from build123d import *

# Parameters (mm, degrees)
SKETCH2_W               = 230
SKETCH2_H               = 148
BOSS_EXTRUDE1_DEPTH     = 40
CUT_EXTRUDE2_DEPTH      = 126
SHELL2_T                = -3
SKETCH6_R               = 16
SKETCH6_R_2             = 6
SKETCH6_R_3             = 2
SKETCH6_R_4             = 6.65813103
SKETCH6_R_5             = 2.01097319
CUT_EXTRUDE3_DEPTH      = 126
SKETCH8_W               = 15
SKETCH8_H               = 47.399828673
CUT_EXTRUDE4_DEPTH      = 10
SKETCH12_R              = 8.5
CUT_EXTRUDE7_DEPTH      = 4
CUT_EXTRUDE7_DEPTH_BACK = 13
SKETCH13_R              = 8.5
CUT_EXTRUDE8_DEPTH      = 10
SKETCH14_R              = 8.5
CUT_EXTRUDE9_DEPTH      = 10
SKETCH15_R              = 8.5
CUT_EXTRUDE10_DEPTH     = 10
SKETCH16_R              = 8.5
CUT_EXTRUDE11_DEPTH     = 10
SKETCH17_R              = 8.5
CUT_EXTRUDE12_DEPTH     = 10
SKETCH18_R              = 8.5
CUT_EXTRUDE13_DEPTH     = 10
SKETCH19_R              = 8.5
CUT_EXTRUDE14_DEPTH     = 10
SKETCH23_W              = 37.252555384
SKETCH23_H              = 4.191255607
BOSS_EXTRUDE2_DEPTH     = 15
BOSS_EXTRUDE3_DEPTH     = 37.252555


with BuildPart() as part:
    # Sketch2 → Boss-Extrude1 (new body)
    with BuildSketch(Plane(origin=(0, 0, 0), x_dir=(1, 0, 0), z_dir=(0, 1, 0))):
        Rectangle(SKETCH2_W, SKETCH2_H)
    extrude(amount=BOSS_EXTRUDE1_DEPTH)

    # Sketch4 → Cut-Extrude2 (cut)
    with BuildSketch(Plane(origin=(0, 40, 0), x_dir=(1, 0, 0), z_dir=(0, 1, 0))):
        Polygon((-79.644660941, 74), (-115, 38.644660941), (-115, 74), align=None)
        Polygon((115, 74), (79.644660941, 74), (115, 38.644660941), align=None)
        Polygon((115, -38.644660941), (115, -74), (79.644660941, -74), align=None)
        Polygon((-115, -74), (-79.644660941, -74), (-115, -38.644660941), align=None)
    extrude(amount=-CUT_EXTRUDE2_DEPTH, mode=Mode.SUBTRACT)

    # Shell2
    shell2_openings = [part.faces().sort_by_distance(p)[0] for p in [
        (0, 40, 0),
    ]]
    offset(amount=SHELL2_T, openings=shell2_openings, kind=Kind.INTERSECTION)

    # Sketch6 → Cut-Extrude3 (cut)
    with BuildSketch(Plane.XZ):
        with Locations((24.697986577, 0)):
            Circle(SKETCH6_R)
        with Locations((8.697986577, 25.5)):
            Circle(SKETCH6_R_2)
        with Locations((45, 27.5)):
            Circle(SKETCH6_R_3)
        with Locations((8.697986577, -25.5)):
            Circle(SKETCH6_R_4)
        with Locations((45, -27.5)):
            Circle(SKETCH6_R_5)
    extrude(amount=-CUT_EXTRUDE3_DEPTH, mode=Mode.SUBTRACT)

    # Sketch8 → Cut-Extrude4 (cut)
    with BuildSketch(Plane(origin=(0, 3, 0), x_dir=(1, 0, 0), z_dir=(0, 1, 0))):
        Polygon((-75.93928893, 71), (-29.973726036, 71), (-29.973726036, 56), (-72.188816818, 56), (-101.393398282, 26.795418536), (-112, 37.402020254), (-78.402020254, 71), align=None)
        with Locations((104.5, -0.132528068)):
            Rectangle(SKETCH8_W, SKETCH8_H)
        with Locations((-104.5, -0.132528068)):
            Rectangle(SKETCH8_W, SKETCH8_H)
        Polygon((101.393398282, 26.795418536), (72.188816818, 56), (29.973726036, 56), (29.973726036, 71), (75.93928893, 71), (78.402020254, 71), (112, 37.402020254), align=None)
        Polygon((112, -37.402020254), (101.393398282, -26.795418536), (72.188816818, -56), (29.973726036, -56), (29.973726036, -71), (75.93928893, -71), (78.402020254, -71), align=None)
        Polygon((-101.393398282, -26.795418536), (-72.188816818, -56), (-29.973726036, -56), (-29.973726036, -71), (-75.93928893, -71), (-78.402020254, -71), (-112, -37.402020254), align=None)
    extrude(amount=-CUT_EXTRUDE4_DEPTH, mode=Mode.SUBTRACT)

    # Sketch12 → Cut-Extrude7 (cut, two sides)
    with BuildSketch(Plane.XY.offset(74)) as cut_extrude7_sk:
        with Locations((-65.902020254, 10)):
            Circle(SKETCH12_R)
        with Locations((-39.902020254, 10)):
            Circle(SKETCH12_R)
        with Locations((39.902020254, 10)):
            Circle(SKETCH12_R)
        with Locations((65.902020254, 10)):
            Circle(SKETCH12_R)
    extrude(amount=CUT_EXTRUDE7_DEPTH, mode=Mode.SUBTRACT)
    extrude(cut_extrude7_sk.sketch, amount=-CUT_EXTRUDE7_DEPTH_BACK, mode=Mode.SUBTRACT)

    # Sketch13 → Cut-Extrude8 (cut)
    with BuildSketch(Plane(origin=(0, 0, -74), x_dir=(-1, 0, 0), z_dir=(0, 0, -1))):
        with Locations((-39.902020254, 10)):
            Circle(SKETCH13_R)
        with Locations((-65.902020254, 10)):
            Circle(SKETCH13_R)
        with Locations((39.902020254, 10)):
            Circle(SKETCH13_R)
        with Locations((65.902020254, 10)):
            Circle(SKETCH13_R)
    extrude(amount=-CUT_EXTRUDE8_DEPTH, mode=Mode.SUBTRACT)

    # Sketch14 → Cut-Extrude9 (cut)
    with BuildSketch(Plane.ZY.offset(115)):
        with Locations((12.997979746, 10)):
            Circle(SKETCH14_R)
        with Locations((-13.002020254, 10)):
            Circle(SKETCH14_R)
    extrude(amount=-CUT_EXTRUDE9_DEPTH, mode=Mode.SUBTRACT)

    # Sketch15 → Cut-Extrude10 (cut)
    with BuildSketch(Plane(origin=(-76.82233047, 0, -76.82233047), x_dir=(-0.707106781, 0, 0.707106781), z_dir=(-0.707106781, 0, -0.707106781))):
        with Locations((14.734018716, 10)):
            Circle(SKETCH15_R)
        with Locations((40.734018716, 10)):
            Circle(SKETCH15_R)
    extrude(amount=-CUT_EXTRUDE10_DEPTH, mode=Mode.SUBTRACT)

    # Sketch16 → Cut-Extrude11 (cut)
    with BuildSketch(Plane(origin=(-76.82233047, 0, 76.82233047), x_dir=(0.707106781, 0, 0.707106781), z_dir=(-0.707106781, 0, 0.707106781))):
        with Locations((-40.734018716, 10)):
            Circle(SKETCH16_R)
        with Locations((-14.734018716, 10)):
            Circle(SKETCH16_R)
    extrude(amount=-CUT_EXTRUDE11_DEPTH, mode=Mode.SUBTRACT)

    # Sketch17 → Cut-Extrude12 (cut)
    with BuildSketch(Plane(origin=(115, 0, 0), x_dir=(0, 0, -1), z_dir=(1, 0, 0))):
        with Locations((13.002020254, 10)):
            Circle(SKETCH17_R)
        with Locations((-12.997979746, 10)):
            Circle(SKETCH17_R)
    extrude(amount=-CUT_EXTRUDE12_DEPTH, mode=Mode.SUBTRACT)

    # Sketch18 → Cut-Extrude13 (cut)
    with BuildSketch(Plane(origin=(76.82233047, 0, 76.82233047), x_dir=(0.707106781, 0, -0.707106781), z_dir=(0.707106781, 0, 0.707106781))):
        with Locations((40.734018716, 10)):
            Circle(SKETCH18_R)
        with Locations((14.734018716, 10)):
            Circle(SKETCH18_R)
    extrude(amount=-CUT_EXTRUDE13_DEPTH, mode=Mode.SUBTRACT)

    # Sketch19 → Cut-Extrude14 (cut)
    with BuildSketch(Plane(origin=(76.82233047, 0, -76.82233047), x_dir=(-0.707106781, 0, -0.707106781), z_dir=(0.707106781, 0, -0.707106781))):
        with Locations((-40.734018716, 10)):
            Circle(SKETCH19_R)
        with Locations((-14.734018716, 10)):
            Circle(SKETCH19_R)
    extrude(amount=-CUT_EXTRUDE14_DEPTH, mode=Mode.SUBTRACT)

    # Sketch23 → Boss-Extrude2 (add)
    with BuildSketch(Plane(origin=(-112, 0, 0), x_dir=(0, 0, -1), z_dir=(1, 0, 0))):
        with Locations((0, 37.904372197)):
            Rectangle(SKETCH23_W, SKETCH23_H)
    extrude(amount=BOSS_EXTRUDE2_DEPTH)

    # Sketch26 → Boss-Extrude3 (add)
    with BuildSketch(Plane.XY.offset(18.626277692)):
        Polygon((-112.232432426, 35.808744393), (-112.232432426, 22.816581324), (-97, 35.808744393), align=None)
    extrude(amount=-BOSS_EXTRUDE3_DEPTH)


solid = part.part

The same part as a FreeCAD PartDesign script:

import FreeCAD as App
import Part
import Sketcher
from FreeCAD import Vector


def faces_at(feature, points):
    """Names of the faces that lie closest to the given points."""
    faces = feature.Shape.Faces
    near = lambda p: min(range(len(faces)), key=lambda i: faces[i].distToShape(Part.Vertex(*p))[0])
    return sorted({f"Face{near(p) + 1}" for p in points})


def add_polygon(sketch, points):
    """Adds a closed chain of lines whose ends are joined by coincident constraints."""
    first, n = sketch.GeometryCount, len(points)
    for a, b in zip(points, points[1:] + points[:1]):
        sketch.addGeometry(Part.LineSegment(App.Vector(*a, 0), App.Vector(*b, 0)), False)
    for i in range(n):
        sketch.addConstraint(Sketcher.Constraint("Coincident", first + i, 2, first + (i + 1) % n, 1))

doc = App.newDocument("Part")
body = doc.addObject("PartDesign::Body", "Body")

# Sketch on XZ plane
sketch1 = body.newObject("Sketcher::SketchObject", "Sketch")
sketch1.AttachmentSupport = (doc.getObject("XZ_Plane"), [""])
sketch1.MapMode = "FlatFace"
add_polygon(sketch1, [(-115, -74), (-115, 74), (115, 74), (115, -74)])  # lines 0-3
sketch1.addConstraint([
    Sketcher.Constraint("Vertical", 0),
    Sketcher.Constraint("Horizontal", 1),
    Sketcher.Constraint("Vertical", 2),
    Sketcher.Constraint("Horizontal", 3),
    Sketcher.Constraint("Symmetric", 0, 2, 2, 2, -1, 1),
    Sketcher.Constraint("DistanceX", 1, 1, 1, 2, 230.0),
    Sketcher.Constraint("DistanceY", 0, 1, 0, 2, 148.0),
])
pad1 = body.newObject("PartDesign::Pad", "Pad")
pad1.Profile = sketch1
pad1.Length = 40
pad1.Reversed = True

# Sketch on XZ plane
sketch2 = body.newObject("Sketcher::SketchObject", "Sketch001")
sketch2.AttachmentSupport = (doc.getObject("XZ_Plane"), [""])
sketch2.MapMode = "FlatFace"
sketch2.AttachmentOffset = App.Placement(Vector(0, 0, -40), App.Rotation())
add_polygon(sketch2, [(-115, -39), (-80, -74), (-115, -74)])  # lines 0-2
add_polygon(sketch2, [(115, -74), (80, -74), (115, -39)])  # lines 3-5
add_polygon(sketch2, [(115, 74), (115, 39), (80, 74)])  # lines 6-8
add_polygon(sketch2, [(-115, 74), (-80, 74), (-115, 39)])  # lines 9-11
sketch2.addConstraint([
    Sketcher.Constraint("Horizontal", 1),
    Sketcher.Constraint("Vertical", 2),
    Sketcher.Constraint("Horizontal", 3),
    Sketcher.Constraint("Vertical", 5),
    Sketcher.Constraint("Vertical", 6),
    Sketcher.Constraint("Horizontal", 8),
    Sketcher.Constraint("Horizontal", 9),
    Sketcher.Constraint("Vertical", 11),
    Sketcher.Constraint("Symmetric", 2, 2, 6, 2, -1, 1),
    Sketcher.Constraint("Symmetric", 0, 2, 7, 2, -1, 1),
    Sketcher.Constraint("Symmetric", 3, 2, 9, 2, -1, 1),
    Sketcher.Constraint("Symmetric", 4, 2, 10, 2, -1, 1),
    Sketcher.Constraint("Symmetric", 0, 2, 3, 2, -2),
    Sketcher.Constraint("Symmetric", 2, 2, 4, 2, -2),
    Sketcher.Constraint("Perpendicular", 0, 4),
    Sketcher.Constraint("Distance", 0, 50.0),
    Sketcher.Constraint("DistanceY", 0, 2, -1, 1, 74.0),
    Sketcher.Constraint("DistanceX", 1, 2, -1, 1, 115.0),
])
pocket1 = body.newObject("PartDesign::Pocket", "Pocket")
pocket1.Profile = sketch2
pocket1.Length = 126
pocket1.Reversed = True
doc.recompute()

thickness = body.newObject("PartDesign::Thickness", "Thickness")
thickness.Base = (pocket1, faces_at(pocket1, [(0, 40, 0)]))
thickness.Value = 3
thickness.Reversed = True
thickness.Join = "Intersection"

# Sketch on XZ plane
sketch3 = body.newObject("Sketcher::SketchObject", "Sketch002")
sketch3.AttachmentSupport = (doc.getObject("XZ_Plane"), [""])
sketch3.MapMode = "FlatFace"
sketch3.addGeometry([
    Part.Circle(Vector(24.7, 0, 0), Vector(0, 0, 1), 16),  # 0
    Part.Circle(Vector(8.7, 25.5, 0), Vector(0, 0, 1), 6),  # 1
    Part.Circle(Vector(45, 27.5, 0), Vector(0, 0, 1), 2),  # 2
    Part.Circle(Vector(8.7, -25.5, 0), Vector(0, 0, 1), 6.7),  # 3
    Part.Circle(Vector(45, -27.5, 0), Vector(0, 0, 1), 2),  # 4
], False)
sketch3.addConstraint([
    Sketcher.Constraint("Symmetric", 1, 3, 3, 3, -1),
    Sketcher.Constraint("Symmetric", 2, 3, 4, 3, -1),
    Sketcher.Constraint("PointOnObject", 0, 3, -1),
    Sketcher.Constraint("Diameter", 0, 32.0),
    Sketcher.Constraint("Diameter", 1, 12.0),
    Sketcher.Constraint("Diameter", 2, 4.0),
    Sketcher.Constraint("DistanceX", -1, 1, 2, 3, 45.0),
    Sketcher.Constraint("DistanceX", 1, 3, 0, 3, 16.0),
    Sketcher.Constraint("DistanceY", 1, 3, 2, 3, 2.0),
    Sketcher.Constraint("DistanceY", 3, 3, 1, 3, 51.0),
    Sketcher.Constraint("Diameter", 3, 13.316262),
    Sketcher.Constraint("Diameter", 4, 4.021946),
    Sketcher.Constraint("DistanceX", -1, 1, 0, 3, 24.697987),
])
pocket2 = body.newObject("PartDesign::Pocket", "Pocket001")
pocket2.Profile = sketch3
pocket2.Length = 126

# Sketch on XZ plane
sketch4 = body.newObject("Sketcher::SketchObject", "Sketch003")
sketch4.AttachmentSupport = (doc.getObject("XZ_Plane"), [""])
sketch4.MapMode = "FlatFace"
sketch4.AttachmentOffset = App.Placement(Vector(0, 0, -3), App.Rotation())
add_polygon(sketch4, [(-30, -71), (-78, -71), (-112, -37), (-101, -27), (-72, -56), (-30, -56)])  # lines 0-5
add_polygon(sketch4, [(97, -24), (97, 24), (112, 24), (112, -24)])  # lines 6-9
add_polygon(sketch4, [(-112, -24), (-112, 24), (-97, 24), (-97, -24)])  # lines 10-13
add_polygon(sketch4, [(72, -56), (101, -27), (112, -37), (78, -71), (30, -71), (30, -56)])  # lines 14-19
add_polygon(sketch4, [(112, 37), (101, 27), (72, 56), (30, 56), (30, 71), (78, 71)])  # lines 20-25
add_polygon(sketch4, [(-72, 56), (-101, 27), (-112, 37), (-78, 71), (-30, 71), (-30, 56)])  # lines 26-31
sketch4.addConstraint([
    Sketcher.Constraint("Horizontal", 0),
    Sketcher.Constraint("Horizontal", 4),
    Sketcher.Constraint("Vertical", 5),
    Sketcher.Constraint("Vertical", 6),
    Sketcher.Constraint("Horizontal", 7),
    Sketcher.Constraint("Vertical", 8),
    Sketcher.Constraint("Horizontal", 9),
    Sketcher.Constraint("Vertical", 10),
    Sketcher.Constraint("Horizontal", 11),
    Sketcher.Constraint("Vertical", 12),
    Sketcher.Constraint("Horizontal", 13),
    Sketcher.Constraint("Horizontal", 17),
    Sketcher.Constraint("Vertical", 18),
    Sketcher.Constraint("Horizontal", 19),
    Sketcher.Constraint("Horizontal", 22),
    Sketcher.Constraint("Vertical", 23),
    Sketcher.Constraint("Horizontal", 24),
    Sketcher.Constraint("Horizontal", 29),
    Sketcher.Constraint("Vertical", 30),
    Sketcher.Constraint("Horizontal", 31),
    Sketcher.Constraint("Symmetric", 2, 2, 20, 2, -1, 1),
    Sketcher.Constraint("Symmetric", 3, 2, 21, 2, -1, 1),
    Sketcher.Constraint("Symmetric", 5, 2, 23, 2, -1, 1),
    Sketcher.Constraint("Symmetric", 1, 2, 25, 2, -1, 1),
    Sketcher.Constraint("Symmetric", 14, 2, 26, 2, -1, 1),
    Sketcher.Constraint("Symmetric", 15, 2, 27, 2, -1, 1),
    Sketcher.Constraint("Symmetric", 16, 2, 28, 2, -1, 1),
    Sketcher.Constraint("Symmetric", 18, 2, 30, 2, -1, 1),
    Sketcher.Constraint("Symmetric", 7, 2, 10, 2, -2),
    Sketcher.Constraint("Symmetric", 9, 2, 12, 2, -2),
    Sketcher.Constraint("Symmetric", 2, 2, 14, 2, -2),
    Sketcher.Constraint("Symmetric", 1, 2, 15, 2, -2),
    Sketcher.Constraint("Symmetric", 0, 2, 16, 2, -2),
    Sketcher.Constraint("Symmetric", 4, 2, 18, 2, -2),
    Sketcher.Constraint("Perpendicular", 1, 2),
    Sketcher.Constraint("Perpendicular", 2, 3),
    Sketcher.Constraint("Perpendicular", 3, 14),
    Sketcher.Constraint("Perpendicular", 14, 15),
    Sketcher.Constraint("Parallel", 21, 25),
    Sketcher.Constraint("Perpendicular", 25, 26),
    Sketcher.Constraint("Vertical", 1, 2, 10, 2),
    Sketcher.Constraint("Equal", 13, 5),
    Sketcher.Constraint("DistanceX", 7, 1, 7, 2, 15.0),
    Sketcher.Constraint("Distance", 2, 15.0),
    Sketcher.Constraint("DistanceY", 0, 2, -1, 1, 71.0),
    Sketcher.Constraint("DistanceX", 1, 2, -1, 1, 112.0),
    Sketcher.Constraint("DistanceX", 4, 1, 4, 2, 42.215091),
    Sketcher.Constraint("DistanceY", 6, 1, 6, 2, 47.399829),
    Sketcher.Constraint("Distance", 1, 47.514719),
    Sketcher.Constraint("DistanceY", 2, 2, 6, 2, 50.627861),
])
pocket3 = body.newObject("PartDesign::Pocket", "Pocket002")
pocket3.Profile = sketch4
pocket3.Length = 10
pocket3.Reversed = True

# Sketch on XY plane
sketch5 = body.newObject("Sketcher::SketchObject", "Sketch004")
sketch5.AttachmentSupport = (doc.getObject("XY_Plane"), [""])
sketch5.MapMode = "FlatFace"
sketch5.AttachmentOffset = App.Placement(Vector(0, 0, 74), App.Rotation())
sketch5.addGeometry([
    Part.Circle(Vector(-66, 10, 0), Vector(0, 0, 1), 8),
    Part.Circle(Vector(-40, 10, 0), Vector(0, 0, 1), 8),
    Part.Circle(Vector(40, 10, 0), Vector(0, 0, 1), 8),
    Part.Circle(Vector(66, 10, 0), Vector(0, 0, 1), 8),
], False)
sketch5.addConstraint([
    Sketcher.Constraint("Equal", 0, 1),
    Sketcher.Constraint("Equal", 1, 2),
    Sketcher.Constraint("Equal", 2, 3),
    Sketcher.Constraint("Symmetric", 1, 3, 2, 3, -2),
    Sketcher.Constraint("Symmetric", 0, 3, 3, 3, -2),
    Sketcher.Constraint("Horizontal", 0, 3, 1, 3),
    Sketcher.Constraint("Diameter", 0, 17.0),
    Sketcher.Constraint("DistanceY", -1, 1, 0, 3, 10.0),
    Sketcher.Constraint("DistanceX", 0, 3, 1, 3, 26.0),
    Sketcher.Constraint("DistanceX", 0, 3, -1, 1, 65.90202),
])
pocket4 = body.newObject("PartDesign::Pocket", "Pocket003")
pocket4.Profile = sketch5
pocket4.Type = "TwoLengths"
pocket4.Length = 4
pocket4.Length2 = 13
pocket4.Reversed = True

# Sketch on XY plane
sketch6 = body.newObject("Sketcher::SketchObject", "Sketch005")
sketch6.AttachmentSupport = (doc.getObject("XY_Plane"), [""])
sketch6.MapMode = "FlatFace"
sketch6.AttachmentOffset = App.Placement(Vector(0, 0, -74), App.Rotation())
sketch6.addGeometry([
    Part.Circle(Vector(40, 10, 0), Vector(0, 0, 1), 8),
    Part.Circle(Vector(66, 10, 0), Vector(0, 0, 1), 8),
    Part.Circle(Vector(-40, 10, 0), Vector(0, 0, 1), 8),
    Part.Circle(Vector(-66, 10, 0), Vector(0, 0, 1), 8),
], False)
sketch6.addConstraint([
    Sketcher.Constraint("Equal", 0, 1),
    Sketcher.Constraint("Equal", 1, 2),
    Sketcher.Constraint("Equal", 2, 3),
    Sketcher.Constraint("Symmetric", 0, 3, 2, 3, -2),
    Sketcher.Constraint("Symmetric", 1, 3, 3, 3, -2),
    Sketcher.Constraint("Horizontal", 0, 3, 1, 3),
    Sketcher.Constraint("Diameter", 0, 17.0),
    Sketcher.Constraint("DistanceY", -1, 1, 0, 3, 10.0),
    Sketcher.Constraint("DistanceX", 0, 3, 1, 3, 26.0),
    Sketcher.Constraint("DistanceX", -1, 1, 0, 3, 39.90202),
])
pocket5 = body.newObject("PartDesign::Pocket", "Pocket004")
pocket5.Profile = sketch6
pocket5.Length = 10
pocket5.Reversed = True

# Sketch on YZ plane
sketch7 = body.newObject("Sketcher::SketchObject", "Sketch006")
sketch7.AttachmentSupport = (doc.getObject("YZ_Plane"), [""])
sketch7.MapMode = "FlatFace"
sketch7.AttachmentOffset = App.Placement(Vector(0, 0, -115), App.Rotation())
sketch7.addGeometry([
    Part.Circle(Vector(10, 13, 0), Vector(0, 0, 1), 8),
    Part.Circle(Vector(10, -13, 0), Vector(0, 0, 1), 8),
], False)
sketch7.addConstraint([
    Sketcher.Constraint("Equal", 0, 1),
    Sketcher.Constraint("Vertical", 0, 3, 1, 3),
    Sketcher.Constraint("Diameter", 0, 17.0),
    Sketcher.Constraint("DistanceX", -1, 1, 0, 3, 10.0),
    Sketcher.Constraint("DistanceY", 1, 3, 0, 3, 26.0),
    Sketcher.Constraint("DistanceY", -1, 1, 0, 3, 12.99798),
])
pocket6 = body.newObject("PartDesign::Pocket", "Pocket005")
pocket6.Profile = sketch7
pocket6.Length = 10
pocket6.Reversed = True

# Sketch on an angled plane
sketch8 = body.newObject("Sketcher::SketchObject", "Sketch007")
sketch8.Placement = App.Placement(Vector(-76.82233, 0, -76.82233), App.Rotation(Vector(-0.707106781, 0, 0.707106781), Vector(0, 0.999999999, 0), Vector(-0.707106781, 0, -0.707106781), "ZXY"))
sketch8.addGeometry([
    Part.Circle(Vector(15, 10, 0), Vector(0, 0, 1), 8),
    Part.Circle(Vector(41, 10, 0), Vector(0, 0, 1), 8),
], False)
sketch8.addConstraint([
    Sketcher.Constraint("Equal", 0, 1),
    Sketcher.Constraint("Horizontal", 0, 3, 1, 3),
    Sketcher.Constraint("Diameter", 0, 17.0),
    Sketcher.Constraint("DistanceY", -1, 1, 0, 3, 10.0),
    Sketcher.Constraint("DistanceX", 0, 3, 1, 3, 26.0),
    Sketcher.Constraint("DistanceX", -1, 1, 0, 3, 14.734019),
])
pocket7 = body.newObject("PartDesign::Pocket", "Pocket006")
pocket7.Profile = sketch8
pocket7.Length = 10

# Sketch on an angled plane
sketch9 = body.newObject("Sketcher::SketchObject", "Sketch008")
sketch9.Placement = App.Placement(Vector(-76.82233, 0, 76.82233), App.Rotation(Vector(0.707106781, 0, 0.707106781), Vector(0, 0.999999999, 0), Vector(-0.707106781, 0, 0.707106781), "ZXY"))
sketch9.addGeometry([
    Part.Circle(Vector(-41, 10, 0), Vector(0, 0, 1), 8),
    Part.Circle(Vector(-15, 10, 0), Vector(0, 0, 1), 8),
], False)
sketch9.addConstraint([
    Sketcher.Constraint("Equal", 0, 1),
    Sketcher.Constraint("Horizontal", 0, 3, 1, 3),
    Sketcher.Constraint("Diameter", 0, 17.0),
    Sketcher.Constraint("DistanceY", -1, 1, 0, 3, 10.0),
    Sketcher.Constraint("DistanceX", 0, 3, 1, 3, 26.0),
    Sketcher.Constraint("DistanceX", 0, 3, -1, 1, 40.734019),
])
pocket8 = body.newObject("PartDesign::Pocket", "Pocket007")
pocket8.Profile = sketch9
pocket8.Length = 10

# Sketch on YZ plane
sketch10 = body.newObject("Sketcher::SketchObject", "Sketch009")
sketch10.AttachmentSupport = (doc.getObject("YZ_Plane"), [""])
sketch10.MapMode = "FlatFace"
sketch10.AttachmentOffset = App.Placement(Vector(0, 0, 115), App.Rotation())
sketch10.addGeometry([
    Part.Circle(Vector(10, -13, 0), Vector(0, 0, 1), 8),
    Part.Circle(Vector(10, 13, 0), Vector(0, 0, 1), 8),
], False)
sketch10.addConstraint([
    Sketcher.Constraint("Equal", 0, 1),
    Sketcher.Constraint("Vertical", 0, 3, 1, 3),
    Sketcher.Constraint("Diameter", 0, 17.0),
    Sketcher.Constraint("DistanceX", -1, 1, 0, 3, 10.0),
    Sketcher.Constraint("DistanceY", 0, 3, 1, 3, 26.0),
    Sketcher.Constraint("DistanceY", 0, 3, -1, 1, 13.00202),
])
pocket9 = body.newObject("PartDesign::Pocket", "Pocket008")
pocket9.Profile = sketch10
pocket9.Length = 10

# Sketch on an angled plane
sketch11 = body.newObject("Sketcher::SketchObject", "Sketch010")
sketch11.Placement = App.Placement(Vector(76.82233, 0, 76.82233), App.Rotation(Vector(0.707106781, 0, -0.707106781), Vector(0, 0.999999999, 0), Vector(0.707106781, 0, 0.707106781), "ZXY"))
sketch11.addGeometry([
    Part.Circle(Vector(41, 10, 0), Vector(0, 0, 1), 8),
    Part.Circle(Vector(15, 10, 0), Vector(0, 0, 1), 8),
], False)
sketch11.addConstraint([
    Sketcher.Constraint("Equal", 0, 1),
    Sketcher.Constraint("Horizontal", 0, 3, 1, 3),
    Sketcher.Constraint("Diameter", 0, 17.0),
    Sketcher.Constraint("DistanceY", -1, 1, 0, 3, 10.0),
    Sketcher.Constraint("DistanceX", 1, 3, 0, 3, 26.0),
    Sketcher.Constraint("DistanceX", -1, 1, 0, 3, 40.734019),
])
pocket10 = body.newObject("PartDesign::Pocket", "Pocket009")
pocket10.Profile = sketch11
pocket10.Length = 10

# Sketch on an angled plane
sketch12 = body.newObject("Sketcher::SketchObject", "Sketch011")
sketch12.Placement = App.Placement(Vector(76.82233, 0, -76.82233), App.Rotation(Vector(-0.707106781, 0, -0.707106781), Vector(0, 0.999999999, 0), Vector(0.707106781, 0, -0.707106781), "ZXY"))
sketch12.addGeometry([
    Part.Circle(Vector(-41, 10, 0), Vector(0, 0, 1), 8),
    Part.Circle(Vector(-15, 10, 0), Vector(0, 0, 1), 8),
], False)
sketch12.addConstraint([
    Sketcher.Constraint("Equal", 0, 1),
    Sketcher.Constraint("Horizontal", 0, 3, 1, 3),
    Sketcher.Constraint("Diameter", 0, 17.0),
    Sketcher.Constraint("DistanceY", -1, 1, 0, 3, 10.0),
    Sketcher.Constraint("DistanceX", 0, 3, 1, 3, 26.0),
    Sketcher.Constraint("DistanceX", 0, 3, -1, 1, 40.734019),
])
pocket11 = body.newObject("PartDesign::Pocket", "Pocket010")
pocket11.Profile = sketch12
pocket11.Length = 10

# Sketch on YZ plane
sketch13 = body.newObject("Sketcher::SketchObject", "Sketch012")
sketch13.AttachmentSupport = (doc.getObject("YZ_Plane"), [""])
sketch13.MapMode = "FlatFace"
sketch13.AttachmentOffset = App.Placement(Vector(0, 0, -112), App.Rotation())
add_polygon(sketch13, [(40, 18.6), (35.8, 18.6), (35.8, -18.6), (40, -18.6)])  # lines 0-3
sketch13.addConstraint([
    Sketcher.Constraint("Horizontal", 0),
    Sketcher.Constraint("Vertical", 1),
    Sketcher.Constraint("Horizontal", 2),
    Sketcher.Constraint("Vertical", 3),
    Sketcher.Constraint("DistanceX", -1, 1, 2, 2, 40.0),
    Sketcher.Constraint("DistanceX", 0, 2, 0, 1, 4.191256),
    Sketcher.Constraint("DistanceY", 1, 2, 1, 1, 37.252555),
    Sketcher.Constraint("DistanceY", -1, 1, 0, 2, 18.626278),
])
pad2 = body.newObject("PartDesign::Pad", "Pad001")
pad2.Profile = sketch13
pad2.Length = 15

# Sketch on XY plane
sketch14 = body.newObject("Sketcher::SketchObject", "Sketch013")
sketch14.AttachmentSupport = (doc.getObject("XY_Plane"), [""])
sketch14.MapMode = "FlatFace"
sketch14.AttachmentOffset = App.Placement(Vector(0, 0, 18.626278), App.Rotation())
add_polygon(sketch14, [(-112, 36), (-112, 23), (-97, 36)])  # lines 0-2
sketch14.addConstraint([
    Sketcher.Constraint("Vertical", 0),
    Sketcher.Constraint("Horizontal", 2),
    Sketcher.Constraint("DistanceX", 1, 2, -1, 1, 97.0),
    Sketcher.Constraint("Distance", 1, 20.020572),
    Sketcher.Constraint("DistanceX", 2, 2, 2, 1, 15.232432),
    Sketcher.Constraint("DistanceY", -1, 1, 0, 2, 22.816581),
])
pad3 = body.newObject("PartDesign::Pad", "Pad002")
pad3.Profile = sketch14
pad3.Length = 37.252555
pad3.Reversed = True

doc.recompute()
